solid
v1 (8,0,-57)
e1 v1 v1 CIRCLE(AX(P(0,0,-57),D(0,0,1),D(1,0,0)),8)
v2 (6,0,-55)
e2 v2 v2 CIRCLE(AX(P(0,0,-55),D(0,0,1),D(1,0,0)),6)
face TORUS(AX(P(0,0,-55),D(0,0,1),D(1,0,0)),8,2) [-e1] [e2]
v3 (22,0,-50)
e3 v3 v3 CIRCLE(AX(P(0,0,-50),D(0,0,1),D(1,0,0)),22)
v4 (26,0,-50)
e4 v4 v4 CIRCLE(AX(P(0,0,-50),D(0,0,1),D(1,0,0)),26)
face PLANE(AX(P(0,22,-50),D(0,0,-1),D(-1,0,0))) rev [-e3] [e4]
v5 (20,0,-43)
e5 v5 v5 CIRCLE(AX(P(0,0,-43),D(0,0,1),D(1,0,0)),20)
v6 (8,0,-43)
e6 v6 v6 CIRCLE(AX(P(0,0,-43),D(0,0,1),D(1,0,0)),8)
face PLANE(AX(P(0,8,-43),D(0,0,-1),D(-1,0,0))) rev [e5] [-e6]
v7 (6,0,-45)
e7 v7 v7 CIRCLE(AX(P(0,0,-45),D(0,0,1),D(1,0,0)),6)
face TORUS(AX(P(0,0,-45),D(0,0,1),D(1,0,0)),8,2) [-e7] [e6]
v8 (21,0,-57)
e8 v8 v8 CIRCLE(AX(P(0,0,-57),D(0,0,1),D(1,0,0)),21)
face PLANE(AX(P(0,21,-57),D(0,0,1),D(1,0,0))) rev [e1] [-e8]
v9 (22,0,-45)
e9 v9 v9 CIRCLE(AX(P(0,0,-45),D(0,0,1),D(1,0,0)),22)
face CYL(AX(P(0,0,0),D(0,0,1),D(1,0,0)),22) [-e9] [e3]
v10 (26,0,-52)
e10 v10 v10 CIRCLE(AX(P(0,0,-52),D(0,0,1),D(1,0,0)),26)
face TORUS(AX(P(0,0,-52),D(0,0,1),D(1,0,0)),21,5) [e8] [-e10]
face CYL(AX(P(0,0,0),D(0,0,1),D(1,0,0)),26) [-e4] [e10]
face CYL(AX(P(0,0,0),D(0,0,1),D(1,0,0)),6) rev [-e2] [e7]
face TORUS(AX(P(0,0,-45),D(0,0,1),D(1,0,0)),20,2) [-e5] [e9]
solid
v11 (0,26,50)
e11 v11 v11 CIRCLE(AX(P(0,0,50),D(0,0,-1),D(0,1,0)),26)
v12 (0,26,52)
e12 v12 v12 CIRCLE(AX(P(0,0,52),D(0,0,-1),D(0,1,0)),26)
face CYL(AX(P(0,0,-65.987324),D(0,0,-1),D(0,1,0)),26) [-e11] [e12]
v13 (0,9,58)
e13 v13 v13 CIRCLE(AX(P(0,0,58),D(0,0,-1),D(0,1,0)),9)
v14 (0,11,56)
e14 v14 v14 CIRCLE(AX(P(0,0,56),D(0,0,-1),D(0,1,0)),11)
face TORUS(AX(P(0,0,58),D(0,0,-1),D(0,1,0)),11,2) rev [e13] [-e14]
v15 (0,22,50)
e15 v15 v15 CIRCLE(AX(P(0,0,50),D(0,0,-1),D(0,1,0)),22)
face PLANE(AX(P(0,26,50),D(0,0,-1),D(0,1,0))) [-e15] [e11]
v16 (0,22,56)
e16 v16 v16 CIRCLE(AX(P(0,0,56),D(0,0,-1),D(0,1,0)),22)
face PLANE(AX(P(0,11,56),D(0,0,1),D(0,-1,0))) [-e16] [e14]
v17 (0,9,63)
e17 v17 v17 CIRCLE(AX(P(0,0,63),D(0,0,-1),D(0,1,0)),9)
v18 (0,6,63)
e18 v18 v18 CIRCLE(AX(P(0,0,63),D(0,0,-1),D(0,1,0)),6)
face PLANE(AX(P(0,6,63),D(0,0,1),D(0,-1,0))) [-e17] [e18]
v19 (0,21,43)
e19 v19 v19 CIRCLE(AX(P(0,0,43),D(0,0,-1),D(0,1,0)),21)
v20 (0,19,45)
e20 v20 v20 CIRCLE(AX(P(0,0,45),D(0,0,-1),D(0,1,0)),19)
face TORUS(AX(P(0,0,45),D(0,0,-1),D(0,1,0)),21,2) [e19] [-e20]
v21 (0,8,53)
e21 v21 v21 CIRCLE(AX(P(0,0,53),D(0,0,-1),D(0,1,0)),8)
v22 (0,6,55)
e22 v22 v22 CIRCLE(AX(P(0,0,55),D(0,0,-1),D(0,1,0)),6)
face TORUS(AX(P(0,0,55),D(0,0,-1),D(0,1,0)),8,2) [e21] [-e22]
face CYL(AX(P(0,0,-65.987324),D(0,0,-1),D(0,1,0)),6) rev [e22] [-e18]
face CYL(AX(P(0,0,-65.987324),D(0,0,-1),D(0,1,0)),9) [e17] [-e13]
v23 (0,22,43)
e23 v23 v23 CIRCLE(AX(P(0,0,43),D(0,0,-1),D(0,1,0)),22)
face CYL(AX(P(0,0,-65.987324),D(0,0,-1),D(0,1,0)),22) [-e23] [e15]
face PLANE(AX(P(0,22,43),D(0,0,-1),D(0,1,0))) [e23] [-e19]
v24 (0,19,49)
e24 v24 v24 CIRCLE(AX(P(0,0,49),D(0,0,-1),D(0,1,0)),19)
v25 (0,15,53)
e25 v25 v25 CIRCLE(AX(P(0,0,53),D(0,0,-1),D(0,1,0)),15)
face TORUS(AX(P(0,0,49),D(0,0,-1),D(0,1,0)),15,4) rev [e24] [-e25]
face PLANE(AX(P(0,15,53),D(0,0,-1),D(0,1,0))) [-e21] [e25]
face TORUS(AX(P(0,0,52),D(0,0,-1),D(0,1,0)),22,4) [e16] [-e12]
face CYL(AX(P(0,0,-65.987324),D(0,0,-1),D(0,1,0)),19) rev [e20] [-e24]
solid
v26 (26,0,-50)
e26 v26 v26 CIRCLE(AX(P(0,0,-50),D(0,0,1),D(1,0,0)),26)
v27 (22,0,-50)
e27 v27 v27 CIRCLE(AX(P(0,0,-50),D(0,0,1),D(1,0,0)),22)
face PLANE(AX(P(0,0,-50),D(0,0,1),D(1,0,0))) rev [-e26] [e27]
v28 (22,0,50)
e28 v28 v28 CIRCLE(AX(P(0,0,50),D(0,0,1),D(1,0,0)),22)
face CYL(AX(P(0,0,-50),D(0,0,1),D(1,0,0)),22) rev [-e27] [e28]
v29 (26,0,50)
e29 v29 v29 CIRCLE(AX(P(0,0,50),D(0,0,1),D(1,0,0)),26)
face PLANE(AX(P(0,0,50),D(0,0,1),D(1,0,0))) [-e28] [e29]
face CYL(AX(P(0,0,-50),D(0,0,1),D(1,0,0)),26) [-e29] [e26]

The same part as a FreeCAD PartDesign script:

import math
import FreeCAD as App
import Part
import Sketcher
from FreeCAD import Vector

doc = App.newDocument("Part")
body = doc.addObject("PartDesign::Body", "Body")

sketch1 = doc.addObject("Sketcher::SketchObject", "Sketch")
body.addObject(sketch1)
sketch1.AttachmentSupport = (doc.XY_Plane, [""])
sketch1.MapMode = "FlatFace"
sketch1.addGeometry(Part.Circle(Vector(0, 0, 0), Vector(0, 0, 1), 26), False)
sketch1.addGeometry(Part.Circle(Vector(0, 0, 0), Vector(0, 0, 1), 22), False)
sketch1.addConstraint(Sketcher.Constraint("Coincident", 0, 3, -1, 1))
sketch1.addConstraint(Sketcher.Constraint("Coincident", 1, 3, -1, 1))
sketch1.addConstraint(Sketcher.Constraint("Diameter", 0, 52.0))
sketch1.addConstraint(Sketcher.Constraint("Diameter", 1, 44.0))
pad1 = doc.addObject("PartDesign::Pad", "Pad")
body.addObject(pad1)
pad1.Profile = sketch1
pad1.Type = "TwoLengths"
pad1.Length = 50
pad1.Length2 = 50
body2 = doc.addObject("PartDesign::Body", "Body001")

sketch2 = doc.addObject("Sketcher::SketchObject", "Sketch001")
body2.addObject(sketch2)
sketch2.AttachmentSupport = (doc.getObject("YZ_Plane001"), [""])
sketch2.MapMode = "FlatFace"
sketch2.addGeometry(Part.LineSegment(Vector(22, 43, 0), Vector(22, 50, 0)), False)
sketch2.addGeometry(Part.LineSegment(Vector(22, 50, 0), Vector(26, 50, 0)), False)
sketch2.addGeometry(Part.LineSegment(Vector(26, 50, 0), Vector(26, 52, 0)), False)
sketch2.addGeometry(Part.ArcOfCircle(Part.Circle(Vector(22, 52, 0), Vector(0, 0, 1), 4), math.radians(0), math.radians(90)), False)
sketch2.addGeometry(Part.LineSegment(Vector(22, 56, 0), Vector(11, 56, 0)), False)
sketch2.addGeometry(Part.ArcOfCircle(Part.Circle(Vector(11, 58, 0), Vector(0, 0, 1), 2), math.radians(-180), math.radians(-90)), False)
sketch2.addGeometry(Part.LineSegment(Vector(9, 58, 0), Vector(9, 63, 0)), False)
sketch2.addGeometry(Part.LineSegment(Vector(9, 63, 0), Vector(6, 63, 0)), False)
sketch2.addGeometry(Part.LineSegment(Vector(6, 63, 0), Vector(6, 55, 0)), False)
sketch2.addGeometry(Part.ArcOfCircle(Part.Circle(Vector(8, 55, 0), Vector(0, 0, 1), 2), math.radians(-180), math.radians(-90)), False)
sketch2.addGeometry(Part.LineSegment(Vector(8, 53, 0), Vector(15, 53, 0)), False)
sketch2.addGeometry(Part.ArcOfCircle(Part.Circle(Vector(15, 49, 0), Vector(0, 0, 1), 4), math.radians(0), math.radians(90)), False)
sketch2.addGeometry(Part.LineSegment(Vector(19, 49, 0), Vector(19, 45, 0)), False)
sketch2.addGeometry(Part.ArcOfCircle(Part.Circle(Vector(21, 45, 0), Vector(0, 0, 1), 2), math.radians(-180), math.radians(-90)), False)
sketch2.addGeometry(Part.LineSegment(Vector(21, 43, 0), Vector(22, 43, 0)), False)
sketch2.addConstraint(Sketcher.Constraint("Coincident", 0, 2, 1, 1))
sketch2.addConstraint(Sketcher.Constraint("Coincident", 1, 2, 2, 1))
sketch2.addConstraint(Sketcher.Constraint("Tangent", 2, 2, 3, 1))
sketch2.addConstraint(Sketcher.Constraint("Tangent", 3, 2, 4, 1))
sketch2.addConstraint(Sketcher.Constraint("Tangent", 4, 2, 5, 2))
sketch2.addConstraint(Sketcher.Constraint("Tangent", 5, 1, 6, 1))
sketch2.addConstraint(Sketcher.Constraint("Coincident", 6, 2, 7, 1))
sketch2.addConstraint(Sketcher.Constraint("Coincident", 7, 2, 8, 1))
sketch2.addConstraint(Sketcher.Constraint("Tangent", 8, 2, 9, 1))
sketch2.addConstraint(Sketcher.Constraint("Tangent", 9, 2, 10, 1))
sketch2.addConstraint(Sketcher.Constraint("Tangent", 10, 2, 11, 2))
sketch2.addConstraint(Sketcher.Constraint("Tangent", 11, 1, 12, 1))
sketch2.addConstraint(Sketcher.Constraint("Tangent", 12, 2, 13, 1))
sketch2.addConstraint(Sketcher.Constraint("Tangent", 13, 2, 14, 1))
sketch2.addConstraint(Sketcher.Constraint("Coincident", 14, 2, 0, 1))
sketch2.addConstraint(Sketcher.Constraint("Vertical", 0))
sketch2.addConstraint(Sketcher.Constraint("Horizontal", 1))
sketch2.addConstraint(Sketcher.Constraint("Vertical", 2))
sketch2.addConstraint(Sketcher.Constraint("Horizontal", 4))
sketch2.addConstraint(Sketcher.Constraint("Vertical", 6))
sketch2.addConstraint(Sketcher.Constraint("Horizontal", 7))
sketch2.addConstraint(Sketcher.Constraint("Vertical", 8))
sketch2.addConstraint(Sketcher.Constraint("Horizontal", 10))
sketch2.addConstraint(Sketcher.Constraint("Vertical", 12))
sketch2.addConstraint(Sketcher.Constraint("Horizontal", 14))
sketch2.addConstraint(Sketcher.Constraint("Equal", 5, 9))
sketch2.addConstraint(Sketcher.Constraint("Equal", 3, 11))
sketch2.addConstraint(Sketcher.Constraint("Equal", 9, 13))
sketch2.addConstraint(Sketcher.Constraint("Vertical", 3, 3, 0, 2))
sketch2.addConstraint(Sketcher.Constraint("Equal", 10, 0))
sketch2.addConstraint(Sketcher.Constraint("Equal", 1, 12))
sketch2.addConstraint(Sketcher.Constraint("Radius", 3, 4.0))
sketch2.addConstraint(Sketcher.Constraint("Radius", 5, 2.0))
sketch2.addConstraint(Sketcher.Constraint("DistanceX", 4, 2, 4, 1, 11.0))
sketch2.addConstraint(Sketcher.Constraint("DistanceX", 7, 2, 7, 1, 3.0))
sketch2.addConstraint(Sketcher.Constraint("DistanceX", 10, 1, 10, 2, 7.0))
sketch2.addConstraint(Sketcher.Constraint("DistanceY", 2, 1, 2, 2, 2.0))
sketch2.addConstraint(Sketcher.Constraint("DistanceY", 6, 1, 6, 2, 5.0))
sketch2.addConstraint(Sketcher.Constraint("DistanceX", -1, 1, 3, 3, 22.0))
sketch2.addConstraint(Sketcher.Constraint("DistanceY", -1, 1, 3, 3, 52.0))
revolution = doc.addObject("PartDesign::Revolution", "Revolution")
body2.addObject(revolution)
revolution.Profile = sketch2
revolution.ReferenceAxis = (sketch2, ["V_Axis"])
revolution.Angle = 360
body3 = doc.addObject("PartDesign::Body", "Body002")

sketch3 = doc.addObject("Sketcher::SketchObject", "Sketch002")
body3.addObject(sketch3)
sketch3.AttachmentSupport = (doc.getObject("YZ_Plane002"), [""])
sketch3.MapMode = "FlatFace"
sketch3.addGeometry(Part.LineSegment(Vector(22, -50, 0), Vector(22, -45, 0)), False)
sketch3.addGeometry(Part.ArcOfCircle(Part.Circle(Vector(20, -45, 0), Vector(0, 0, 1), 2), math.radians(0), math.radians(90)), False)
sketch3.addGeometry(Part.LineSegment(Vector(20, -43, 0), Vector(8, -43, 0)), False)
sketch3.addGeometry(Part.ArcOfCircle(Part.Circle(Vector(8, -45, 0), Vector(0, 0, 1), 2), math.radians(90), math.radians(180)), False)
sketch3.addGeometry(Part.LineSegment(Vector(6, -45, 0), Vector(6, -55, 0)), False)
sketch3.addGeometry(Part.ArcOfCircle(Part.Circle(Vector(8, -55, 0), Vector(0, 0, 1), 2), math.radians(-180), math.radians(-90)), False)
sketch3.addGeometry(Part.LineSegment(Vector(8, -57, 0), Vector(21, -57, 0)), False)
sketch3.addGeometry(Part.ArcOfCircle(Part.Circle(Vector(21, -52, 0), Vector(0, 0, 1), 5), math.radians(-90), math.radians(0)), False)
sketch3.addGeometry(Part.LineSegment(Vector(26, -52, 0), Vector(26, -50, 0)), False)
sketch3.addGeometry(Part.LineSegment(Vector(26, -50, 0), Vector(22, -50, 0)), False)
sketch3.addConstraint(Sketcher.Constraint("Tangent", 0, 2, 1, 1))
sketch3.addConstraint(Sketcher.Constraint("Tangent", 1, 2, 2, 1))
sketch3.addConstraint(Sketcher.Constraint("Tangent", 2, 2, 3, 1))
sketch3.addConstraint(Sketcher.Constraint("Tangent", 3, 2, 4, 1))
sketch3.addConstraint(Sketcher.Constraint("Tangent", 4, 2, 5, 1))
sketch3.addConstraint(Sketcher.Constraint("Tangent", 5, 2, 6, 1))
sketch3.addConstraint(Sketcher.Constraint("Tangent", 6, 2, 7, 1))
sketch3.addConstraint(Sketcher.Constraint("Tangent", 7, 2, 8, 1))
sketch3.addConstraint(Sketcher.Constraint("Coincident", 8, 2, 9, 1))
sketch3.addConstraint(Sketcher.Constraint("Coincident", 9, 2, 0, 1))
sketch3.addConstraint(Sketcher.Constraint("Vertical", 0))
sketch3.addConstraint(Sketcher.Constraint("Horizontal", 2))
sketch3.addConstraint(Sketcher.Constraint("Vertical", 4))
sketch3.addConstraint(Sketcher.Constraint("Horizontal", 6))
sketch3.addConstraint(Sketcher.Constraint("Vertical", 8))
sketch3.addConstraint(Sketcher.Constraint("Horizontal", 9))
sketch3.addConstraint(Sketcher.Constraint("Equal", 1, 3))
sketch3.addConstraint(Sketcher.Constraint("Equal", 3, 5))
sketch3.addConstraint(Sketcher.Constraint("Radius", 1, 2.0))
sketch3.addConstraint(Sketcher.Constraint("Radius", 7, 5.0))
sketch3.addConstraint(Sketcher.Constraint("DistanceX", 2, 2, 2, 1, 12.0))
sketch3.addConstraint(Sketcher.Constraint("DistanceX", 6, 1, 6, 2, 13.0))
sketch3.addConstraint(Sketcher.Constraint("DistanceY", 0, 1, 0, 2, 5.0))
sketch3.addConstraint(Sketcher.Constraint("DistanceY", 4, 2, 4, 1, 10.0))
sketch3.addConstraint(Sketcher.Constraint("DistanceX", -1, 1, 1, 3, 20.0))
sketch3.addConstraint(Sketcher.Constraint("DistanceY", 1, 3, -1, 1, 45.0))
revolution2 = doc.addObject("PartDesign::Revolution", "Revolution001")
body3.addObject(revolution2)
revolution2.Profile = sketch3
revolution2.ReferenceAxis = (sketch3, ["V_Axis"])
revolution2.Angle = 360

doc.recompute()
